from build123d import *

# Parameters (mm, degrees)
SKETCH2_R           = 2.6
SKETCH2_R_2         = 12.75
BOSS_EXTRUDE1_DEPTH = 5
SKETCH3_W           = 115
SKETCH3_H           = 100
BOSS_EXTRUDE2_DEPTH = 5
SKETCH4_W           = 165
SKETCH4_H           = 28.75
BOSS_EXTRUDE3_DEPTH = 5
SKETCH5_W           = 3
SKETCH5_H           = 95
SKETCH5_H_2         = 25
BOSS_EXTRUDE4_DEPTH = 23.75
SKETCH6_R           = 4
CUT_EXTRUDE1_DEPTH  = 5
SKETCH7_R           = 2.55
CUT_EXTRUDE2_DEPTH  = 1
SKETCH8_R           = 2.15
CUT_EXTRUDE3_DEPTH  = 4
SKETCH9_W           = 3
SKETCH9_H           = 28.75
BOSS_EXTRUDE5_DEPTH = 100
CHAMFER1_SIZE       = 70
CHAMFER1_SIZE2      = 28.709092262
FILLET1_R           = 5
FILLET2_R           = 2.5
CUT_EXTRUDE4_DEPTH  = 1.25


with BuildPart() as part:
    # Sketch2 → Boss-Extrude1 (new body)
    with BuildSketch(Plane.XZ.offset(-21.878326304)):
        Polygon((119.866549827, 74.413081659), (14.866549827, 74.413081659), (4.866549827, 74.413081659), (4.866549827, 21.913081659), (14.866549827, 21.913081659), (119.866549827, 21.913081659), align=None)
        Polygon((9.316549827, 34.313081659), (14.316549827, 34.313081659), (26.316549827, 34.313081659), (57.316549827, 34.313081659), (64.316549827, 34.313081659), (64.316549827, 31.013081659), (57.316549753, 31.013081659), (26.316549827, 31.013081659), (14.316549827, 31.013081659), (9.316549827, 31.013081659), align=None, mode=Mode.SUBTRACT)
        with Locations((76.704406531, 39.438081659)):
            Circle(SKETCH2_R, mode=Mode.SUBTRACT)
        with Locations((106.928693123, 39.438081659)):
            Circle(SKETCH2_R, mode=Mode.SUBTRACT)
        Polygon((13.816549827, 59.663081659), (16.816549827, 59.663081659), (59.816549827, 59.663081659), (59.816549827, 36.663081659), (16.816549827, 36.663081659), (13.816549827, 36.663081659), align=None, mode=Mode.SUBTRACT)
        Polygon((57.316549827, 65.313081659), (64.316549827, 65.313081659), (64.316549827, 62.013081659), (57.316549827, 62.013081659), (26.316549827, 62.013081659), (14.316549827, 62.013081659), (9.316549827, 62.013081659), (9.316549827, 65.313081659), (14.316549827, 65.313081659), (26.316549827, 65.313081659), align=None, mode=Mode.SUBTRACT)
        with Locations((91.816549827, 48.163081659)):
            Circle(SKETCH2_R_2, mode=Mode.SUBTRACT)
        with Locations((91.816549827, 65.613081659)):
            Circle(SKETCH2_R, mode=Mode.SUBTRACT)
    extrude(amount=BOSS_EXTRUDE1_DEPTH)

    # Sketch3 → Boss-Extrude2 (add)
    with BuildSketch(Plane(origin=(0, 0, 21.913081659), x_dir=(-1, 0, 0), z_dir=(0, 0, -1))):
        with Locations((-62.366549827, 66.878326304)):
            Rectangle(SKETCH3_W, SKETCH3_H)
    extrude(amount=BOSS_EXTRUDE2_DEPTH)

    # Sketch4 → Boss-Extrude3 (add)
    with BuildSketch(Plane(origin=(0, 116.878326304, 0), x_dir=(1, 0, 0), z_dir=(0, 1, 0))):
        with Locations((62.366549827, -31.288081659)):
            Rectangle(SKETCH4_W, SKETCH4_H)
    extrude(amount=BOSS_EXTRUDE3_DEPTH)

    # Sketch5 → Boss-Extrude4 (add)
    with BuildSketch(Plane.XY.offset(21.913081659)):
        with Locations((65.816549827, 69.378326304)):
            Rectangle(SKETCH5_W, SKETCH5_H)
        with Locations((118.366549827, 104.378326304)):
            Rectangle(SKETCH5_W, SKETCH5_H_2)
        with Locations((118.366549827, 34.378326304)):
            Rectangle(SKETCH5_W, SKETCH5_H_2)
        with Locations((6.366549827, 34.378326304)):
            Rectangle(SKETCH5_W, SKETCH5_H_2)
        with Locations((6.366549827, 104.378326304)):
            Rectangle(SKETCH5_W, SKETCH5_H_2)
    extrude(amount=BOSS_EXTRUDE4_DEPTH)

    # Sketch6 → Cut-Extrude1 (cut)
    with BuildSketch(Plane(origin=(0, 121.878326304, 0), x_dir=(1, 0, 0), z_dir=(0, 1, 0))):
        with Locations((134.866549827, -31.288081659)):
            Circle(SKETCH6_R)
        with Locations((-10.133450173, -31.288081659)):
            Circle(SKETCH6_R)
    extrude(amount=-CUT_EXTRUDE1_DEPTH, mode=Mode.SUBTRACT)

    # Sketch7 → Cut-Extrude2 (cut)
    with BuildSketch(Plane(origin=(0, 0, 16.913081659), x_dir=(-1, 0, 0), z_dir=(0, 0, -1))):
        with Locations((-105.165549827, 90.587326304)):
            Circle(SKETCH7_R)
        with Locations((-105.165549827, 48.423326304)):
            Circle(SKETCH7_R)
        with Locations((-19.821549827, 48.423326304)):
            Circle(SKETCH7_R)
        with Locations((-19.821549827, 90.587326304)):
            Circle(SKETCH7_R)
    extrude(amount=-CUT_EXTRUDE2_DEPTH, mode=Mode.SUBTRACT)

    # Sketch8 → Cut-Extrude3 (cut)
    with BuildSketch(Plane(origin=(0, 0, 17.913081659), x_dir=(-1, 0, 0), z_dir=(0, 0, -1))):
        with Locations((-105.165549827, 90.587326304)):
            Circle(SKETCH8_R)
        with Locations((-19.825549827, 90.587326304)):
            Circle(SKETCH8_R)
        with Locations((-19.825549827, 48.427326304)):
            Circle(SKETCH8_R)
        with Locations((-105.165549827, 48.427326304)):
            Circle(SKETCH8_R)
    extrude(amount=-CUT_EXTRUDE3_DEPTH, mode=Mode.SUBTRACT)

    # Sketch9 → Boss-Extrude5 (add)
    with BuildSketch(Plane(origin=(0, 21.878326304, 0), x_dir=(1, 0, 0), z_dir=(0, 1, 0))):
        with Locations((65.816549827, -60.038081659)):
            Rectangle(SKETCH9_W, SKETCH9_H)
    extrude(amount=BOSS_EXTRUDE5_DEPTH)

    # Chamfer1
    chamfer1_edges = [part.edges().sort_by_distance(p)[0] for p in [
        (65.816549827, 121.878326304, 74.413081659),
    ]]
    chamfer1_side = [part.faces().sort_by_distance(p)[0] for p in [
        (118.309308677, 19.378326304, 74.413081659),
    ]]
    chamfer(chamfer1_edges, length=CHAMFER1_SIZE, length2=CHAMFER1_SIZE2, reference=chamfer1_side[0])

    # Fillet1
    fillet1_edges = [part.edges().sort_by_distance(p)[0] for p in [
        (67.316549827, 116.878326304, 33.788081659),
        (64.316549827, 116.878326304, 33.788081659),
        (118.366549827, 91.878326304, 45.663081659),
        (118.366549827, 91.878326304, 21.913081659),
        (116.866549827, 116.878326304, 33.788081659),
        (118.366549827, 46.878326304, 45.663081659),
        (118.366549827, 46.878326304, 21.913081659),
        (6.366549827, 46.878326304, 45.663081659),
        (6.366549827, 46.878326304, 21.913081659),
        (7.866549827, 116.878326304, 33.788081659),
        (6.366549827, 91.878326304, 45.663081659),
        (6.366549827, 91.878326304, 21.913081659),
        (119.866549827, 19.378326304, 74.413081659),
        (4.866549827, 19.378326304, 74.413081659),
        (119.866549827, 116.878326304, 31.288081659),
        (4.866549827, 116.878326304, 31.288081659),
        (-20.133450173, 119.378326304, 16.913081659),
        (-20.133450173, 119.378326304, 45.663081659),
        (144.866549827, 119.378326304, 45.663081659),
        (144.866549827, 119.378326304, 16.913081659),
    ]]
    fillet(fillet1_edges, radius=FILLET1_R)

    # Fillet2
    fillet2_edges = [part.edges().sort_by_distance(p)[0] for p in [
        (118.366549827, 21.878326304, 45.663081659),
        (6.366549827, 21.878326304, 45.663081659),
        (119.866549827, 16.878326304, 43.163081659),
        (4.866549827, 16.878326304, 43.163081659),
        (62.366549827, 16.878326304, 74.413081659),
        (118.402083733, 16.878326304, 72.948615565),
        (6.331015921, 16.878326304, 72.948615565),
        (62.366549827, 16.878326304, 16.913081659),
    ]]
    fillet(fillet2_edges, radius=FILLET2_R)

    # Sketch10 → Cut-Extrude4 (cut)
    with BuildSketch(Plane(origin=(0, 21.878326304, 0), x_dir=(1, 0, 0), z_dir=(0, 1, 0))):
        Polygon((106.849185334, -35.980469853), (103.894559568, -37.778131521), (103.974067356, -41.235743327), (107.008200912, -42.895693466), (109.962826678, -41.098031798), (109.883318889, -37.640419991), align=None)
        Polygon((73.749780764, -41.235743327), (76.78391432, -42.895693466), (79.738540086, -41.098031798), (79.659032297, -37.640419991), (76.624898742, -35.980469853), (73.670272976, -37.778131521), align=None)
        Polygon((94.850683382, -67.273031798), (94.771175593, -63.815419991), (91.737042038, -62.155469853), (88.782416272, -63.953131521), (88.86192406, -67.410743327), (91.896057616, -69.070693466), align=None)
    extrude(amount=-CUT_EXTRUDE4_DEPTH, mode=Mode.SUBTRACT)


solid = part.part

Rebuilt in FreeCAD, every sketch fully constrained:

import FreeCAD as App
import Part
import Sketcher

V = App.Vector
Q = App.Units.Quantity


def edges_at(feature, points):
    """Names of the edges that pass closest to the given points."""
    edges = feature.Shape.Edges
    near = lambda p: min(range(len(edges)), key=lambda i: edges[i].distToShape(Part.Vertex(*p))[0])
    return sorted({f"Edge{near(p) + 1}" for p in points})


def add_polygon(sketch, points):
    """Adds a closed chain of lines whose ends are joined by coincident constraints."""
    first, n = sketch.GeometryCount, len(points)
    for a, b in zip(points, points[1:] + points[:1]):
        sketch.addGeometry(Part.LineSegment(App.Vector(*a, 0), App.Vector(*b, 0)), False)
    for i in range(n):
        sketch.addConstraint(Sketcher.Constraint("Coincident", first + i, 2, first + (i + 1) % n, 1))

doc = App.newDocument("Part")
body = doc.addObject("PartDesign::Body", "Body")

sketch1 = body.newObject("Sketcher::SketchObject", "Sketch")
sketch1.AttachmentSupport = (doc.getObject("XZ_Plane"), [""])
sketch1.MapMode = "FlatFace"
sketch1.AttachmentOffset = App.Placement(V(0, 0, -21.878326), App.Rotation())
add_polygon(sketch1, [(119.9, 74.4), (4.9, 74.4), (4.9, 21.9), (119.9, 21.9)])
add_polygon(sketch1, [(9.3, 31), (9.3, 34.3), (64.3, 34.3), (64.3, 31)])
add_polygon(sketch1, [(13.8, 36.7), (13.8, 59.7), (59.8, 59.7), (59.8, 36.7)])
sketch1.addGeometry(Part.Circle(V(76.7, 39.4, 0), V(0, 0, 1), 2.6), False)
sketch1.addGeometry(Part.Circle(V(106.9, 39.4, 0), V(0, 0, 1), 2.6), False)
sketch1.addGeometry(Part.Circle(V(91.8, 48.2, 0), V(0, 0, 1), 12.8), False)
add_polygon(sketch1, [(9.3, 65.3), (64.3, 65.3), (64.3, 62), (9.3, 62)])
sketch1.addGeometry(Part.Circle(V(91.8, 65.6, 0), V(0, 0, 1), 2.6), False)
sketch1.addConstraint(Sketcher.Constraint("Horizontal", 0))
sketch1.addConstraint(Sketcher.Constraint("Vertical", 1))
sketch1.addConstraint(Sketcher.Constraint("Horizontal", 2))
sketch1.addConstraint(Sketcher.Constraint("Vertical", 3))
sketch1.addConstraint(Sketcher.Constraint("Vertical", 4))
sketch1.addConstraint(Sketcher.Constraint("Horizontal", 5))
sketch1.addConstraint(Sketcher.Constraint("Vertical", 6))
sketch1.addConstraint(Sketcher.Constraint("Horizontal", 7))
sketch1.addConstraint(Sketcher.Constraint("Vertical", 8))
sketch1.addConstraint(Sketcher.Constraint("Horizontal", 9))
sketch1.addConstraint(Sketcher.Constraint("Vertical", 10))
sketch1.addConstraint(Sketcher.Constraint("Horizontal", 11))
sketch1.addConstraint(Sketcher.Constraint("Horizontal", 15))
sketch1.addConstraint(Sketcher.Constraint("Vertical", 16))
sketch1.addConstraint(Sketcher.Constraint("Horizontal", 17))
sketch1.addConstraint(Sketcher.Constraint("Vertical", 18))
sketch1.addConstraint(Sketcher.Constraint("Equal", 12, 13))
sketch1.addConstraint(Sketcher.Constraint("Equal", 13, 19))
sketch1.addConstraint(Sketcher.Constraint("Horizontal", 12, 3, 13, 3))
sketch1.addConstraint(Sketcher.Constraint("Vertical", 14, 3, 19, 3))
sketch1.addConstraint(Sketcher.Constraint("Vertical", 6, 2, 15, 2))
sketch1.addConstraint(Sketcher.Constraint("Vertical", 7, 2, 17, 2))
sketch1.addConstraint(Sketcher.Constraint("Equal", 6, 16))
sketch1.addConstraint(Sketcher.Constraint("Diameter", 12, Q("5.2 mm")))
sketch1.addConstraint(Sketcher.Constraint("Diameter", 14, Q("25.5 mm")))
sketch1.addConstraint(Sketcher.Constraint("DistanceX", 0, 2, 0, 1, Q("115 mm")))
sketch1.addConstraint(Sketcher.Constraint("DistanceX", 5, 1, 5, 2, Q("55 mm")))
sketch1.addConstraint(Sketcher.Constraint("DistanceX", 9, 1, 9, 2, Q("46 mm")))
sketch1.addConstraint(Sketcher.Constraint("DistanceY", 8, 1, 8, 2, Q("23 mm")))
sketch1.addConstraint(Sketcher.Constraint("DistanceY", 1, 2, 1, 1, Q("52.5 mm")))
sketch1.addConstraint(Sketcher.Constraint("DistanceY", 4, 1, 4, 2, Q("3.3 mm")))
sketch1.addConstraint(Sketcher.Constraint("DistanceX", 9, 2, 19, 3, Q("32 mm")))
sketch1.addConstraint(Sketcher.Constraint("DistanceY", 5, 2, 15, 2, Q("31 mm")))
sketch1.addConstraint(Sketcher.Constraint("DistanceY", 19, 3, 0, 2, Q("8.8 mm")))
sketch1.addConstraint(Sketcher.Constraint("DistanceY", 1, 2, 4, 2, Q("12.4 mm")))
sketch1.addConstraint(Sketcher.Constraint("DistanceX", 4, 2, 14, 3, Q("82.5 mm")))
sketch1.addConstraint(Sketcher.Constraint("DistanceY", 14, 3, 9, 2, Q("11.5 mm")))
sketch1.addConstraint(Sketcher.Constraint("DistanceY", 14, 3, 19, 3, Q("17.45 mm")))
sketch1.addConstraint(Sketcher.Constraint("DistanceX", 0, 2, 19, 3, Q("86.95 mm")))
sketch1.addConstraint(Sketcher.Constraint("DistanceY", 12, 3, 14, 3, Q("8.725 mm")))
sketch1.addConstraint(Sketcher.Constraint("DistanceY", -1, 1, 12, 3, Q("39.438082 mm")))
sketch1.addConstraint(Sketcher.Constraint("DistanceX", -1, 1, 14, 3, Q("91.81655 mm")))
sketch1.addConstraint(Sketcher.Constraint("DistanceX", -1, 1, 12, 3, Q("76.704407 mm")))
sketch1.addConstraint(Sketcher.Constraint("DistanceX", -1, 1, 13, 3, Q("106.928693 mm")))
pad1 = body.newObject("PartDesign::Pad", "Pad")
pad1.Profile = sketch1
pad1.Length = 5

sketch2 = body.newObject("Sketcher::SketchObject", "Sketch001")
sketch2.AttachmentSupport = (doc.getObject("XY_Plane"), [""])
sketch2.MapMode = "FlatFace"
sketch2.AttachmentOffset = App.Placement(V(0, 0, 21.913082), App.Rotation())
add_polygon(sketch2, [(120, 117), (120, 17), (5, 17), (5, 117)])
sketch2.addConstraint(Sketcher.Constraint("Vertical", 0))
sketch2.addConstraint(Sketcher.Constraint("Horizontal", 1))
sketch2.addConstraint(Sketcher.Constraint("Vertical", 2))
sketch2.addConstraint(Sketcher.Constraint("Horizontal", 3))
sketch2.addConstraint(Sketcher.Constraint("DistanceX", 1, 2, 1, 1, Q("115 mm")))
sketch2.addConstraint(Sketcher.Constraint("DistanceY", 0, 2, 0, 1, Q("100 mm")))
sketch2.addConstraint(Sketcher.Constraint("DistanceX", -1, 1, 0, 2, Q("119.86655 mm")))
sketch2.addConstraint(Sketcher.Constraint("DistanceY", -1, 1, 0, 2, Q("16.878326 mm")))
pad2 = body.newObject("PartDesign::Pad", "Pad001")
pad2.Profile = sketch2
pad2.Length = 5
pad2.Reversed = True

sketch3 = body.newObject("Sketcher::SketchObject", "Sketch002")
sketch3.AttachmentSupport = (doc.getObject("XZ_Plane"), [""])
sketch3.MapMode = "FlatFace"
sketch3.AttachmentOffset = App.Placement(V(0, 0, -116.878326), App.Rotation())
add_polygon(sketch3, [(-20, 17), (-20, 46), (145, 46), (145, 17)])
sketch3.addConstraint(Sketcher.Constraint("Vertical", 0))
sketch3.addConstraint(Sketcher.Constraint("Horizontal", 1))
sketch3.addConstraint(Sketcher.Constraint("Vertical", 2))
sketch3.addConstraint(Sketcher.Constraint("Horizontal", 3))
sketch3.addConstraint(Sketcher.Constraint("DistanceX", 1, 1, 1, 2, Q("165 mm")))
sketch3.addConstraint(Sketcher.Constraint("DistanceY", 0, 1, 0, 2, Q("28.75 mm")))
sketch3.addConstraint(Sketcher.Constraint("DistanceX", 0, 2, -1, 1, Q("20.13345 mm")))
sketch3.addConstraint(Sketcher.Constraint("DistanceY", -1, 1, 0, 2, Q("45.663082 mm")))
pad3 = body.newObject("PartDesign::Pad", "Pad002")
pad3.Profile = sketch3
pad3.Length = 5
pad3.Reversed = True

sketch4 = body.newObject("Sketcher::SketchObject", "Sketch003")
sketch4.AttachmentSupport = (doc.getObject("XY_Plane"), [""])
sketch4.MapMode = "FlatFace"
sketch4.AttachmentOffset = App.Placement(V(0, 0, 21.913082), App.Rotation())
add_polygon(sketch4, [(64.3, 116.9), (64.3, 21.9), (67.3, 21.9), (67.3, 116.9)])
add_polygon(sketch4, [(116.9, 116.9), (116.9, 91.9), (119.9, 91.9), (119.9, 116.9)])
add_polygon(sketch4, [(116.9, 46.9), (116.9, 21.9), (119.9, 21.9), (119.9, 46.9)])
add_polygon(sketch4, [(4.9, 46.9), (4.9, 21.9), (7.9, 21.9), (7.9, 46.9)])
add_polygon(sketch4, [(4.9, 116.9), (4.9, 91.9), (7.9, 91.9), (7.9, 116.9)])
sketch4.addConstraint(Sketcher.Constraint("Vertical", 0))
sketch4.addConstraint(Sketcher.Constraint("Horizontal", 1))
sketch4.addConstraint(Sketcher.Constraint("Vertical", 2))
sketch4.addConstraint(Sketcher.Constraint("Horizontal", 3))
sketch4.addConstraint(Sketcher.Constraint("Vertical", 4))
sketch4.addConstraint(Sketcher.Constraint("Horizontal", 5))
sketch4.addConstraint(Sketcher.Constraint("Vertical", 6))
sketch4.addConstraint(Sketcher.Constraint("Horizontal", 7))
sketch4.addConstraint(Sketcher.Constraint("Vertical", 8))
sketch4.addConstraint(Sketcher.Constraint("Horizontal", 9))
sketch4.addConstraint(Sketcher.Constraint("Vertical", 10))
sketch4.addConstraint(Sketcher.Constraint("Horizontal", 11))
sketch4.addConstraint(Sketcher.Constraint("Vertical", 12))
sketch4.addConstraint(Sketcher.Constraint("Horizontal", 13))
sketch4.addConstraint(Sketcher.Constraint("Vertical", 14))
sketch4.addConstraint(Sketcher.Constraint("Horizontal", 15))
sketch4.addConstraint(Sketcher.Constraint("Vertical", 16))
sketch4.addConstraint(Sketcher.Constraint("Horizontal", 17))
sketch4.addConstraint(Sketcher.Constraint("Vertical", 18))
sketch4.addConstraint(Sketcher.Constraint("Horizontal", 19))
sketch4.addConstraint(Sketcher.Constraint("Horizontal", 3, 2, 6, 2))
sketch4.addConstraint(Sketcher.Constraint("Horizontal", 1, 2, 8, 2))
sketch4.addConstraint(Sketcher.Constraint("Horizontal", 9, 2, 12, 2))
sketch4.addConstraint(Sketcher.Constraint("Horizontal", 11, 2, 14, 2))
sketch4.addConstraint(Sketcher.Constraint("Horizontal", 5, 2, 16, 2))
sketch4.addConstraint(Sketcher.Constraint("Horizontal", 7, 2, 18, 2))
sketch4.addConstraint(Sketcher.Constraint("Vertical", 7, 2, 8, 2))
sketch4.addConstraint(Sketcher.Constraint("Vertical", 6, 2, 9, 2))
sketch4.addConstraint(Sketcher.Constraint("Vertical", 15, 2, 16, 2))
sketch4.addConstraint(Sketcher.Constraint("Vertical", 14, 2, 17, 2))
sketch4.addConstraint(Sketcher.Constraint("Equal", 3, 5))
sketch4.addConstraint(Sketcher.Constraint("Equal", 11, 13))
sketch4.addConstraint(Sketcher.Constraint("Equal", 6, 8))
sketch4.addConstraint(Sketcher.Constraint("DistanceX", 1, 1, 1, 2, Q("3 mm")))
sketch4.addConstraint(Sketcher.Constraint("DistanceY", 0, 2, 0, 1, Q("95 mm")))
sketch4.addConstraint(Sketcher.Constraint("DistanceY", 4, 2, 4, 1, Q("25 mm")))
sketch4.addConstraint(Sketcher.Constraint("DistanceX", 12, 2, 8, 2, Q("112 mm")))
sketch4.addConstraint(Sketcher.Constraint("DistanceX", 2, 2, 4, 2, Q("49.55 mm")))
sketch4.addConstraint(Sketcher.Constraint("DistanceX", -1, 1, 0, 2, Q("64.31655 mm")))
sketch4.addConstraint(Sketcher.Constraint("DistanceY", -1, 1, 0, 2, Q("21.878326 mm")))
pad4 = body.newObject("PartDesign::Pad", "Pad003")
pad4.Profile = sketch4
pad4.Length = 23.75

sketch5 = body.newObject("Sketcher::SketchObject", "Sketch004")
sketch5.AttachmentSupport = (doc.getObject("XZ_Plane"), [""])
sketch5.MapMode = "FlatFace"
sketch5.AttachmentOffset = App.Placement(V(0, 0, -121.878326), App.Rotation())
sketch5.addGeometry(Part.Circle(V(134.9, 31.3, 0), V(0, 0, 1), 4), False)
sketch5.addGeometry(Part.Circle(V(-10.1, 31.3, 0), V(0, 0, 1), 4), False)
sketch5.addConstraint(Sketcher.Constraint("Equal", 0, 1))
sketch5.addConstraint(Sketcher.Constraint("Horizontal", 0, 3, 1, 3))
sketch5.addConstraint(Sketcher.Constraint("Diameter", 0, Q("8 mm")))
sketch5.addConstraint(Sketcher.Constraint("DistanceX", 1, 3, 0, 3, Q("145 mm")))
sketch5.addConstraint(Sketcher.Constraint("DistanceX", -1, 1, 0, 3, Q("134.86655 mm")))
sketch5.addConstraint(Sketcher.Constraint("DistanceY", -1, 1, 0, 3, Q("31.288082 mm")))
pocket1 = body.newObject("PartDesign::Pocket", "Pocket")
pocket1.Profile = sketch5
pocket1.Length = 5
pocket1.Reversed = True

sketch6 = body.newObject("Sketcher::SketchObject", "Sketch005")
sketch6.AttachmentSupport = (doc.getObject("XY_Plane"), [""])
sketch6.MapMode = "FlatFace"
sketch6.AttachmentOffset = App.Placement(V(0, 0, 16.913082), App.Rotation())
sketch6.addGeometry(Part.Circle(V(105.2, 90.6, 0), V(0, 0, 1), 2.5), False)
sketch6.addGeometry(Part.Circle(V(105.2, 48.4, 0), V(0, 0, 1), 2.5), False)
sketch6.addGeometry(Part.Circle(V(19.8, 48.4, 0), V(0, 0, 1), 2.5), False)
sketch6.addGeometry(Part.Circle(V(19.8, 90.6, 0), V(0, 0, 1), 2.5), False)
sketch6.addConstraint(Sketcher.Constraint("Equal", 0, 1))
sketch6.addConstraint(Sketcher.Constraint("Equal", 1, 2))
sketch6.addConstraint(Sketcher.Constraint("Equal", 2, 3))
sketch6.addConstraint(Sketcher.Constraint("Horizontal", 1, 3, 2, 3))
sketch6.addConstraint(Sketcher.Constraint("Horizontal", 0, 3, 3, 3))
sketch6.addConstraint(Sketcher.Constraint("Vertical", 0, 3, 1, 3))
sketch6.addConstraint(Sketcher.Constraint("Vertical", 2, 3, 3, 3))
sketch6.addConstraint(Sketcher.Constraint("Diameter", 0, Q("5.1 mm")))
sketch6.addConstraint(Sketcher.Constraint("DistanceY", 1, 3, 0, 3, Q("42.164 mm")))
sketch6.addConstraint(Sketcher.Constraint("DistanceX", 2, 3, 1, 3, Q("85.344 mm")))
sketch6.addConstraint(Sketcher.Constraint("DistanceX", -1, 1, 0, 3, Q("105.16555 mm")))
sketch6.addConstraint(Sketcher.Constraint("DistanceY", -1, 1, 0, 3, Q("90.587326 mm")))
pocket2 = body.newObject("PartDesign::Pocket", "Pocket001")
pocket2.Profile = sketch6
pocket2.Length = 1
pocket2.Reversed = True

sketch7 = body.newObject("Sketcher::SketchObject", "Sketch006")
sketch7.AttachmentSupport = (doc.getObject("XY_Plane"), [""])
sketch7.MapMode = "FlatFace"
sketch7.AttachmentOffset = App.Placement(V(0, 0, 17.913082), App.Rotation())
sketch7.addGeometry(Part.Circle(V(105.2, 90.6, 0), V(0, 0, 1), 2.1), False)
sketch7.addGeometry(Part.Circle(V(19.8, 90.6, 0), V(0, 0, 1), 2.1), False)
sketch7.addGeometry(Part.Circle(V(19.8, 48.4, 0), V(0, 0, 1), 2.1), False)
sketch7.addGeometry(Part.Circle(V(105.2, 48.4, 0), V(0, 0, 1), 2.1), False)
sketch7.addConstraint(Sketcher.Constraint("Equal", 0, 1))
sketch7.addConstraint(Sketcher.Constraint("Equal", 1, 2))
sketch7.addConstraint(Sketcher.Constraint("Equal", 2, 3))
sketch7.addConstraint(Sketcher.Constraint("Horizontal", 0, 3, 1, 3))
sketch7.addConstraint(Sketcher.Constraint("Horizontal", 2, 3, 3, 3))
sketch7.addConstraint(Sketcher.Constraint("Vertical", 1, 3, 2, 3))
sketch7.addConstraint(Sketcher.Constraint("Vertical", 0, 3, 3, 3))
sketch7.addConstraint(Sketcher.Constraint("Diameter", 0, Q("4.3 mm")))
sketch7.addConstraint(Sketcher.Constraint("DistanceX", 1, 3, 0, 3, Q("85.34 mm")))
sketch7.addConstraint(Sketcher.Constraint("DistanceY", 2, 3, 1, 3, Q("42.16 mm")))
sketch7.addConstraint(Sketcher.Constraint("DistanceX", -1, 1, 0, 3, Q("105.16555 mm")))
sketch7.addConstraint(Sketcher.Constraint("DistanceY", -1, 1, 0, 3, Q("90.587326 mm")))
pocket3 = body.newObject("PartDesign::Pocket", "Pocket002")
pocket3.Profile = sketch7
pocket3.Length = 4
pocket3.Reversed = True

sketch8 = body.newObject("Sketcher::SketchObject", "Sketch007")
sketch8.AttachmentSupport = (doc.getObject("XZ_Plane"), [""])
sketch8.MapMode = "FlatFace"
sketch8.AttachmentOffset = App.Placement(V(0, 0, -21.878326), App.Rotation())
add_polygon(sketch8, [(64.3, 45.7), (64.3, 74.4), (67.3, 74.4), (67.3, 45.7)])
sketch8.addConstraint(Sketcher.Constraint("Vertical", 0))
sketch8.addConstraint(Sketcher.Constraint("Horizontal", 1))
sketch8.addConstraint(Sketcher.Constraint("Vertical", 2))
sketch8.addConstraint(Sketcher.Constraint("Horizontal", 3))
sketch8.addConstraint(Sketcher.Constraint("DistanceX", 1, 1, 1, 2, Q("3 mm")))
sketch8.addConstraint(Sketcher.Constraint("DistanceY", 0, 1, 0, 2, Q("28.75 mm")))
sketch8.addConstraint(Sketcher.Constraint("DistanceX", -1, 1, 0, 2, Q("64.31655 mm")))
sketch8.addConstraint(Sketcher.Constraint("DistanceY", -1, 1, 0, 2, Q("74.413082 mm")))
pad5 = body.newObject("PartDesign::Pad", "Pad004")
pad5.Profile = sketch8
pad5.Length = 100
pad5.Reversed = True
doc.recompute()

chamfer = body.newObject("PartDesign::Chamfer", "Chamfer")
chamfer.Base = (pad5, edges_at(pad5, [(65.817, 121.878, 74.413)]))
chamfer.ChamferType = "Two distances"
chamfer.Size = 70
chamfer.Size2 = 28.709092
doc.recompute()

fillet = body.newObject("PartDesign::Fillet", "Fillet")
fillet.Base = (chamfer, edges_at(chamfer, [
    (67.317, 116.878, 33.788),
    (64.317, 116.878, 33.788),
    (118.367, 91.878, 45.663),
    (118.367, 91.878, 21.913),
    (116.867, 116.878, 33.788),
    (118.367, 46.878, 45.663),
    (118.367, 46.878, 21.913),
    (6.367, 46.878, 45.663),
    (6.367, 46.878, 21.913),
    (7.867, 116.878, 33.788),
    (6.367, 91.878, 45.663),
    (6.367, 91.878, 21.913),
    (119.867, 19.378, 74.413),
    (4.867, 19.378, 74.413),
    (119.867, 116.878, 31.288),
    (4.867, 116.878, 31.288),
    (-20.133, 119.378, 16.913),
    (-20.133, 119.378, 45.663),
    (144.867, 119.378, 45.663),
    (144.867, 119.378, 16.913),
]))
fillet.Radius = 5
doc.recompute()

fillet2 = body.newObject("PartDesign::Fillet", "Fillet001")
fillet2.Base = (fillet, edges_at(fillet, [
    (118.367, 21.878, 45.663),
    (6.367, 21.878, 45.663),
    (119.867, 16.878, 43.163),
    (4.867, 16.878, 43.163),
    (62.367, 16.878, 74.413),
    (118.402, 16.878, 72.949),
    (6.331, 16.878, 72.949),
    (62.367, 16.878, 16.913),
]))
fillet2.Radius = 2.5

sketch9 = body.newObject("Sketcher::SketchObject", "Sketch008")
sketch9.AttachmentSupport = (doc.getObject("XZ_Plane"), [""])
sketch9.MapMode = "FlatFace"
sketch9.AttachmentOffset = App.Placement(V(0, 0, -21.878326), App.Rotation())
add_polygon(sketch9, [(106.8, 36), (103.9, 37.8), (104, 41.2), (107, 42.9), (110, 41.1), (109.9, 37.6)])
add_polygon(sketch9, [(73.7, 41.2), (76.8, 42.9), (79.7, 41.1), (79.7, 37.6), (76.6, 36), (73.7, 37.8)])
add_polygon(sketch9, [(94.9, 67.3), (94.8, 63.8), (91.7, 62.2), (88.8, 64), (88.9, 67.4), (91.9, 69.1)])
sketch9.addConstraint(Sketcher.Constraint("Parallel", 0, 3))
sketch9.addConstraint(Sketcher.Constraint("Parallel", 1, 4))
sketch9.addConstraint(Sketcher.Constraint("Parallel", 2, 5))
sketch9.addConstraint(Sketcher.Constraint("Parallel", 5, 6))
sketch9.addConstraint(Sketcher.Constraint("Parallel", 3, 7))
sketch9.addConstraint(Sketcher.Constraint("Parallel", 4, 8))
sketch9.addConstraint(Sketcher.Constraint("Parallel", 6, 9))
sketch9.addConstraint(Sketcher.Constraint("Parallel", 7, 10))
sketch9.addConstraint(Sketcher.Constraint("Parallel", 8, 11))
sketch9.addConstraint(Sketcher.Constraint("Parallel", 11, 12))
sketch9.addConstraint(Sketcher.Constraint("Parallel", 9, 13))
sketch9.addConstraint(Sketcher.Constraint("Parallel", 10, 14))
sketch9.addConstraint(Sketcher.Constraint("Parallel", 12, 15))
sketch9.addConstraint(Sketcher.Constraint("Parallel", 13, 16))
sketch9.addConstraint(Sketcher.Constraint("Parallel", 14, 17))
sketch9.addConstraint(Sketcher.Constraint("Horizontal", 2, 2, 6, 2))
sketch9.addConstraint(Sketcher.Constraint("Horizontal", 3, 2, 7, 2))
sketch9.addConstraint(Sketcher.Constraint("Horizontal", 4, 2, 8, 2))
sketch9.addConstraint(Sketcher.Constraint("Horizontal", 5, 2, 9, 2))
sketch9.addConstraint(Sketcher.Constraint("Horizontal", 0, 2, 10, 2))
sketch9.addConstraint(Sketcher.Constraint("Equal", 0, 1))
sketch9.addConstraint(Sketcher.Constraint("Equal", 1, 2))
sketch9.addConstraint(Sketcher.Constraint("Equal", 2, 3))
sketch9.addConstraint(Sketcher.Constraint("Equal", 11, 12))
sketch9.addConstraint(Sketcher.Constraint("Equal", 12, 13))
sketch9.addConstraint(Sketcher.Constraint("Equal", 13, 14))
sketch9.addConstraint(Sketcher.Constraint("Equal", 14, 15))
sketch9.addConstraint(Sketcher.Constraint("DistanceY", 6, 2, 16, 2, Q("26.175 mm")))
sketch9.addConstraint(Sketcher.Constraint("DistanceX", -1, 1, 2, 2, Q("107.008201 mm")))
sketch9.addConstraint(Sketcher.Constraint("DistanceX", -1, 1, 9, 2, Q("76.624899 mm")))
sketch9.addConstraint(Sketcher.Constraint("DistanceY", 0, 2, 3, 2, Q("3.3199 mm")))
sketch9.addConstraint(Sketcher.Constraint("DistanceX", 7, 2, 13, 2, Q("11.998502 mm")))
sketch9.addConstraint(Sketcher.Constraint("DistanceX", -1, 1, 0, 2, Q("103.89456 mm")))
sketch9.addConstraint(Sketcher.Constraint("DistanceY", -1, 1, 0, 2, Q("37.778132 mm")))
sketch9.addConstraint(Sketcher.Constraint("DistanceX", -1, 1, 4, 2, Q("109.883319 mm")))
sketch9.addConstraint(Sketcher.Constraint("DistanceY", -1, 1, 4, 2, Q("37.64042 mm")))
pocket4 = body.newObject("PartDesign::Pocket", "Pocket003")
pocket4.Profile = sketch9
pocket4.Length = 1.25
pocket4.Reversed = True

doc.recompute()
